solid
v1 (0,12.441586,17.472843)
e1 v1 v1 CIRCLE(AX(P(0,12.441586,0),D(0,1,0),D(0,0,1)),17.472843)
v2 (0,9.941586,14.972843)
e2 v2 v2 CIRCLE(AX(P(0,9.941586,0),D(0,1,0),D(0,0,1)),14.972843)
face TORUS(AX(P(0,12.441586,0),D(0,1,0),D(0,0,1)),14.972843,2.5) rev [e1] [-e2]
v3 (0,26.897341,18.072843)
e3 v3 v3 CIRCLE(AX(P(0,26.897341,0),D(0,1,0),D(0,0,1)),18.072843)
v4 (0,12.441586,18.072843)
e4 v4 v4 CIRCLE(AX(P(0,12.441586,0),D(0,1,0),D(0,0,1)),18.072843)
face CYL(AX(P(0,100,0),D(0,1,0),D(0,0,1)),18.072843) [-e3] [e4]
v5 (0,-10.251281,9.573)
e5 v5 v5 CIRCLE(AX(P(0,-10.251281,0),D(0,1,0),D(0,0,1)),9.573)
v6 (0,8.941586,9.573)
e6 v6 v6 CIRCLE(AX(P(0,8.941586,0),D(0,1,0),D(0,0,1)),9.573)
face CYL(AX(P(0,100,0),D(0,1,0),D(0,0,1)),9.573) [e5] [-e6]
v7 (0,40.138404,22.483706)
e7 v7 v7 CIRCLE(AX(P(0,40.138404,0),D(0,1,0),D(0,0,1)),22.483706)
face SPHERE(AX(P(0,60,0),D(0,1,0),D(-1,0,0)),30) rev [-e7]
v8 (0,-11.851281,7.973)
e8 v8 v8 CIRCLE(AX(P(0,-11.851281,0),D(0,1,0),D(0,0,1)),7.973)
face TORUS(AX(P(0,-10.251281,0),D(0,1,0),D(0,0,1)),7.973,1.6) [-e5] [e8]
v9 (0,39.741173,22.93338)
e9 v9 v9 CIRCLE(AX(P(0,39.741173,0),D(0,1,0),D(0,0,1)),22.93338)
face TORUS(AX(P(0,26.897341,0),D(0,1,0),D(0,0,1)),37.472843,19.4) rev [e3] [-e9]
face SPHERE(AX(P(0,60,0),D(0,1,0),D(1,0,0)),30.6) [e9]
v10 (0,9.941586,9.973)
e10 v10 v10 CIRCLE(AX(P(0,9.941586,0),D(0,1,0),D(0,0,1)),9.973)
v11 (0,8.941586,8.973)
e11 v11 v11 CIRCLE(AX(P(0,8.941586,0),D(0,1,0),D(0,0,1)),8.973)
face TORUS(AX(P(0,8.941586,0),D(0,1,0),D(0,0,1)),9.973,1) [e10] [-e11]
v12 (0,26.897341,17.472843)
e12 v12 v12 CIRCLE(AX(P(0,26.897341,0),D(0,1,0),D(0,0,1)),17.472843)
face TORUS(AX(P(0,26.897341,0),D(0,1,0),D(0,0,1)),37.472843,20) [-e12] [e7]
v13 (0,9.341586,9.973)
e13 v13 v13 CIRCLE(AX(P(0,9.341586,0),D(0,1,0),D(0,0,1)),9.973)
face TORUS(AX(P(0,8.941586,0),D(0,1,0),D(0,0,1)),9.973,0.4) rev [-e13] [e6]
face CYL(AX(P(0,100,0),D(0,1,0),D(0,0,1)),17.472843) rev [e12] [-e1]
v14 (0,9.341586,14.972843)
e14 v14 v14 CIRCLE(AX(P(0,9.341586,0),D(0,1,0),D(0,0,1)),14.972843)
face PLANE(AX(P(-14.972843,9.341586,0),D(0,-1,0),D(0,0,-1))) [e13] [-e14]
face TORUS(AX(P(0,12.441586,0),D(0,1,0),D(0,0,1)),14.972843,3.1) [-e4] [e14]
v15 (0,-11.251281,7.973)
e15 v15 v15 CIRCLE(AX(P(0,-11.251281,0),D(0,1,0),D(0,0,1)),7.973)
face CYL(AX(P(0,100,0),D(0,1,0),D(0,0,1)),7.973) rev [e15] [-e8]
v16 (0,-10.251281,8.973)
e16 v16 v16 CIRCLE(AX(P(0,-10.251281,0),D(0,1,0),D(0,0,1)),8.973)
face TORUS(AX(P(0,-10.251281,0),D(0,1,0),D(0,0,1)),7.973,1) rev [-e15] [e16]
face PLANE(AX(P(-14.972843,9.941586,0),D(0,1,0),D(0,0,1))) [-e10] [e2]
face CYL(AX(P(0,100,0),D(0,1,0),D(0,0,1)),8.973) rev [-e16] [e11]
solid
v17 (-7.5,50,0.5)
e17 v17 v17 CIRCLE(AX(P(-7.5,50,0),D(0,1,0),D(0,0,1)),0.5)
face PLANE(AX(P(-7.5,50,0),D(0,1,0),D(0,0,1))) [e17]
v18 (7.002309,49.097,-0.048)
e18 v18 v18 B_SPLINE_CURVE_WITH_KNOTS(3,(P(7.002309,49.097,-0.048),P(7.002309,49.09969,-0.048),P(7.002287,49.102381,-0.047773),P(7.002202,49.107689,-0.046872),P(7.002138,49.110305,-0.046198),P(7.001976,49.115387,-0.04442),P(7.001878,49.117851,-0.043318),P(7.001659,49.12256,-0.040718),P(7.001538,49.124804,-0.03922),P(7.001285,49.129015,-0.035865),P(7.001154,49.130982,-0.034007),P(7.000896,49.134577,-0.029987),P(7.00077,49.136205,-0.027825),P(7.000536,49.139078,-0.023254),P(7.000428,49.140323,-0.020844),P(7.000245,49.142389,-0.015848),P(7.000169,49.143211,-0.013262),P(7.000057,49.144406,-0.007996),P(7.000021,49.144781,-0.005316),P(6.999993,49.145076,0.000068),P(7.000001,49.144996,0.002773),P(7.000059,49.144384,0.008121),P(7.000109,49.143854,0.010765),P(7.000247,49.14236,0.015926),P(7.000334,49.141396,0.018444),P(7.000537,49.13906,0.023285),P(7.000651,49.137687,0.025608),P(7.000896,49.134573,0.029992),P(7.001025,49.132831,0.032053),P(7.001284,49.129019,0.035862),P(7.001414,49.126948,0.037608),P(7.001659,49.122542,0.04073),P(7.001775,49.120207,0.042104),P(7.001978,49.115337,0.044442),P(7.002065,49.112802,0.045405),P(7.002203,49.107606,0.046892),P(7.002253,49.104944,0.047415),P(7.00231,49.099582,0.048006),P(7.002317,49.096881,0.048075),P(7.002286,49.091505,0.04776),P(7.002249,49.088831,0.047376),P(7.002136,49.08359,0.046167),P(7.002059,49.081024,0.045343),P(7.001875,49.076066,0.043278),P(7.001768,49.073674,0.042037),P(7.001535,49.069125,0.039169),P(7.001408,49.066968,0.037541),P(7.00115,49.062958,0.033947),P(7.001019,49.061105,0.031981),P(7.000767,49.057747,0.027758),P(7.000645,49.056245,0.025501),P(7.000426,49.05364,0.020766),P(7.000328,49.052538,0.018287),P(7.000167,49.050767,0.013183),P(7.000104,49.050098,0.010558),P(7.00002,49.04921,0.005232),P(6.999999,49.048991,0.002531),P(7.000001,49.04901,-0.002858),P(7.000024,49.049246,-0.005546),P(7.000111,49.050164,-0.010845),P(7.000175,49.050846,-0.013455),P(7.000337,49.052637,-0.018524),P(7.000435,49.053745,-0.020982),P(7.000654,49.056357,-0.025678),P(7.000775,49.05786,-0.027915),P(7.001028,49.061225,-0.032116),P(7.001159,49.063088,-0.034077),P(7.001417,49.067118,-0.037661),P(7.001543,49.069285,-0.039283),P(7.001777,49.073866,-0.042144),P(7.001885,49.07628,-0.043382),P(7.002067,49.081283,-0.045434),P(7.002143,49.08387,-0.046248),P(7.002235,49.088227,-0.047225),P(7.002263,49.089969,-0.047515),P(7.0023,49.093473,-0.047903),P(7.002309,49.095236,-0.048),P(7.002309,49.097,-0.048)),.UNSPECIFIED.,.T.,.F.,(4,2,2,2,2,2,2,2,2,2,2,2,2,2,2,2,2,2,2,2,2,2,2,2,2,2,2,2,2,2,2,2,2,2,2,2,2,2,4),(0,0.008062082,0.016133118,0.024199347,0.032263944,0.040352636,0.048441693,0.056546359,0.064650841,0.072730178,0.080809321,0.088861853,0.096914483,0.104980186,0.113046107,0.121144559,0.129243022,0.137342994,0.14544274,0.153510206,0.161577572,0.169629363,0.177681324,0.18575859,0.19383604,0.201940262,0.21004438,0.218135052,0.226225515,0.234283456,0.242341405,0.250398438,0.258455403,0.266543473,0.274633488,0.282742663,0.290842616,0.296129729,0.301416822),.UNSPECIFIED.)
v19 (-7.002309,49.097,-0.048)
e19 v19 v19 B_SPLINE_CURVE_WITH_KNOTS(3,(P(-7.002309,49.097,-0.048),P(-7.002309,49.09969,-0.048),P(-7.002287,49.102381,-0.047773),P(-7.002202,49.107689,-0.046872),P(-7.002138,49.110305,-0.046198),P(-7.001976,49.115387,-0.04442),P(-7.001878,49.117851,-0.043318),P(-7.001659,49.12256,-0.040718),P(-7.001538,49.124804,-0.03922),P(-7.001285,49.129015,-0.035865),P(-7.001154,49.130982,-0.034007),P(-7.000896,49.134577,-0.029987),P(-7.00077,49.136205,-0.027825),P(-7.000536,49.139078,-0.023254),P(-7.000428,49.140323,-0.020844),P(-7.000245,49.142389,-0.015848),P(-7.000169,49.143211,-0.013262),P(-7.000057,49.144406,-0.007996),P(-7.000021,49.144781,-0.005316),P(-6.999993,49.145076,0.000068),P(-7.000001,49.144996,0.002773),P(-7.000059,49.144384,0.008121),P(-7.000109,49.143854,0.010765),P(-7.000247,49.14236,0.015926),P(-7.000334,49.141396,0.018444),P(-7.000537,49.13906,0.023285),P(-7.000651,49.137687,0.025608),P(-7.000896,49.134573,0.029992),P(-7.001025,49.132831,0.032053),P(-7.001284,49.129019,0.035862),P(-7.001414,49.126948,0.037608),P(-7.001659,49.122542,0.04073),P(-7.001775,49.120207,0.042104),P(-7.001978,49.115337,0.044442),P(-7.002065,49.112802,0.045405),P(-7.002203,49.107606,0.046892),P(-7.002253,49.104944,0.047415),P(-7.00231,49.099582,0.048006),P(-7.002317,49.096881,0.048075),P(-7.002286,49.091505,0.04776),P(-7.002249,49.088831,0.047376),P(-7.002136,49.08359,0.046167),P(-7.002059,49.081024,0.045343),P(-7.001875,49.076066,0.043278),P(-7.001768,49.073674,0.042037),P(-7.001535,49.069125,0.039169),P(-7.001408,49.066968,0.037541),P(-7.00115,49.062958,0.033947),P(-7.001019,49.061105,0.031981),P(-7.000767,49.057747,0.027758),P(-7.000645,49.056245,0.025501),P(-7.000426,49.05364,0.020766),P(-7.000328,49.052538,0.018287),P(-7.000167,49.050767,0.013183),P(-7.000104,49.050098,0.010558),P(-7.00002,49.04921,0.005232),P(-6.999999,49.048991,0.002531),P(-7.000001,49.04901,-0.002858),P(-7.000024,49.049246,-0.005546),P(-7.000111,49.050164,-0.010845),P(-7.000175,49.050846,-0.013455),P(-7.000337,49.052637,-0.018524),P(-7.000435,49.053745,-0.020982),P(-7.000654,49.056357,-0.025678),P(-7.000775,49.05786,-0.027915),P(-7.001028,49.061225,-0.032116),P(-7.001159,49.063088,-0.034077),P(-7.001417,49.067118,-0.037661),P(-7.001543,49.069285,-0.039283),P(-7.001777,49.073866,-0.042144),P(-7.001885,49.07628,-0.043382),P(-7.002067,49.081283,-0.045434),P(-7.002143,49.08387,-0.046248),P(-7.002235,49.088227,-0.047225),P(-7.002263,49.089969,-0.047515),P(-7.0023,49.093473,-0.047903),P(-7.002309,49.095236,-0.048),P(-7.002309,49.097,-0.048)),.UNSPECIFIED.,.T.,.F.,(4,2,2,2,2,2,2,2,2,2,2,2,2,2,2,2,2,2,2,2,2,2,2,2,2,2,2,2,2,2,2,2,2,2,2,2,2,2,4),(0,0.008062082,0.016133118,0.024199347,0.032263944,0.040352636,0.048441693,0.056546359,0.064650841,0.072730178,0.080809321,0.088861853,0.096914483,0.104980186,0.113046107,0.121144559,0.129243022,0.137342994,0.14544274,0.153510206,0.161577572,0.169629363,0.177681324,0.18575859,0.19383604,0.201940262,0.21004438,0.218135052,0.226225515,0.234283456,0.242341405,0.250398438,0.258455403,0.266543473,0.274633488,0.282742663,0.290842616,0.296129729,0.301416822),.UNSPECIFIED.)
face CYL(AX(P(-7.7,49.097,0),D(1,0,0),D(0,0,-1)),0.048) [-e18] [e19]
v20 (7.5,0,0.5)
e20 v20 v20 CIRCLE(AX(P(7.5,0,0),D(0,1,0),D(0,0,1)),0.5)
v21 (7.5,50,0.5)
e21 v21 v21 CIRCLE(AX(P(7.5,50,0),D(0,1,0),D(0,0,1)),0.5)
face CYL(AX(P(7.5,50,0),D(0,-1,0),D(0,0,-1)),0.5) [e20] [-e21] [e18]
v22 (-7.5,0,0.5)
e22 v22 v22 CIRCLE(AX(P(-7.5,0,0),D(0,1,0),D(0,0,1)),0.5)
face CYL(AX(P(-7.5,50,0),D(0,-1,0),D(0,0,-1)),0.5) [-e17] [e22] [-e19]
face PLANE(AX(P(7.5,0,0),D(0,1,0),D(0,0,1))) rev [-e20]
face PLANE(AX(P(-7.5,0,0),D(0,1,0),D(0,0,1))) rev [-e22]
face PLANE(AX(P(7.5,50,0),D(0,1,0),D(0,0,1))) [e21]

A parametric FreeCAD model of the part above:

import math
import FreeCAD as App
import Part
import Sketcher

doc = App.newDocument("Part")
body = doc.addObject("PartDesign::Body", "Body")

# Sketch on XZ plane
sketch1 = body.newObject("Sketcher::SketchObject", "Sketch")
sketch1.AttachmentSupport = (doc.getObject("XZ_Plane"), [""])
sketch1.MapMode = "FlatFace"
sketch1.addGeometry(Part.Circle(App.Vector(7.5, 0, 0), App.Vector(0, 0, 1), 0.5), False)
sketch1.addConstraint(Sketcher.Constraint("PointOnObject", 0, 3, -1))
sketch1.addConstraint(Sketcher.Constraint("Diameter", 0, 1.0))
sketch1.addConstraint(Sketcher.Constraint("DistanceX", -1, 1, 0, 3, 7.5))
pad1 = body.newObject("PartDesign::Pad", "Pad")
pad1.Profile = sketch1
pad1.Length = 50
pad1.Reversed = True
body2 = doc.addObject("PartDesign::Body", "Body001")

# Sketch on XZ plane
sketch2 = body2.newObject("Sketcher::SketchObject", "Sketch001")
sketch2.AttachmentSupport = (doc.getObject("XZ_Plane001"), [""])
sketch2.MapMode = "FlatFace"
sketch2.addGeometry(Part.Circle(App.Vector(-7.5, 0, 0), App.Vector(0, 0, 1), 0.5), False)
sketch2.addConstraint(Sketcher.Constraint("PointOnObject", 0, 3, -1))
sketch2.addConstraint(Sketcher.Constraint("Diameter", 0, 1.0))
sketch2.addConstraint(Sketcher.Constraint("DistanceX", 0, 3, -1, 1, 7.5))
pad2 = body2.newObject("PartDesign::Pad", "Pad001")
pad2.Profile = sketch2
pad2.Length = 50
pad2.Reversed = True
body.AllowCompound = True
doc.recompute()

boolean = body.newObject("PartDesign::Boolean", "Boolean")
boolean.Type = "Fuse"
boolean.addObjects([body2])

# Sketch on YZ plane
sketch3 = body.newObject("Sketcher::SketchObject", "Sketch002")
sketch3.AttachmentSupport = (doc.getObject("YZ_Plane"), [""])
sketch3.MapMode = "FlatFace"
sketch3.addGeometry(Part.Circle(App.Vector(49.097, 0, 0), App.Vector(0, 0, 1), 0.048), False)
sketch3.addConstraint(Sketcher.Constraint("PointOnObject", 0, 3, -1))
sketch3.addConstraint(Sketcher.Constraint("Diameter", 0, 0.096))
sketch3.addConstraint(Sketcher.Constraint("DistanceX", -1, 1, 0, 3, 49.097))
pad3 = body.newObject("PartDesign::Pad", "Pad002")
pad3.Profile = sketch3
pad3.Type = "TwoLengths"
pad3.Length = 7.7
pad3.Length2 = 7.7
body3 = doc.addObject("PartDesign::Body", "Body002")

# Sketch on XY plane
sketch4 = body3.newObject("Sketcher::SketchObject", "Sketch003")
sketch4.AttachmentSupport = (doc.getObject("XY_Plane002"), [""])
sketch4.MapMode = "FlatFace"
sketch4.addGeometry(Part.LineSegment(App.Vector(-9.97, 9.94, 0), App.Vector(-14.97, 9.94, 0)), False)
sketch4.addGeometry(Part.ArcOfCircle(Part.Circle(App.Vector(-14.97, 12.44, 0), App.Vector(0, 0, 1), 2.5), math.radians(180), math.radians(270)), False)
sketch4.addGeometry(Part.LineSegment(App.Vector(-17.47, 12.44, 0), App.Vector(-17.47, 26.9, 0)), False)
sketch4.addGeometry(Part.ArcOfCircle(Part.Circle(App.Vector(-37.47, 26.9, 0), App.Vector(0, 0, 1), 20), math.radians(0), math.radians(41)), False)
sketch4.addGeometry(Part.ArcOfCircle(Part.Circle(App.Vector(0, 60, 0), App.Vector(0, 0, 1), 30), math.radians(90), math.radians(221)), False)
sketch4.addGeometry(Part.LineSegment(App.Vector(0, 90, 0), App.Vector(0, 90.6, 0)), False)
sketch4.addGeometry(Part.ArcOfCircle(Part.Circle(App.Vector(0, 60, 0), App.Vector(0, 0, 1), 30.6), math.radians(90), math.radians(221)), False)
sketch4.addGeometry(Part.ArcOfCircle(Part.Circle(App.Vector(-37.47, 26.9, 0), App.Vector(0, 0, 1), 19.4), math.radians(0), math.radians(41)), False)
sketch4.addGeometry(Part.LineSegment(App.Vector(-18.07, 26.9, 0), App.Vector(-18.07, 12.44, 0)), False)
sketch4.addGeometry(Part.ArcOfCircle(Part.Circle(App.Vector(-14.97, 12.44, 0), App.Vector(0, 0, 1), 3.1), math.radians(-180), math.radians(-90)), False)
sketch4.addGeometry(Part.LineSegment(App.Vector(-14.97, 9.34, 0), App.Vector(-9.97, 9.34, 0)), False)
sketch4.addGeometry(Part.ArcOfCircle(Part.Circle(App.Vector(-9.97, 8.94, 0), App.Vector(0, 0, 1), 0.4), math.radians(0), math.radians(90)), False)
sketch4.addGeometry(Part.LineSegment(App.Vector(-9.57, 8.94, 0), App.Vector(-9.57, -10.25, 0)), False)
sketch4.addGeometry(Part.ArcOfCircle(Part.Circle(App.Vector(-7.97, -10.25, 0), App.Vector(0, 0, 1), 1.6), math.radians(180), math.radians(270)), False)
sketch4.addGeometry(Part.LineSegment(App.Vector(-7.97, -11.85, 0), App.Vector(-7.97, -11.25, 0)), False)
sketch4.addGeometry(Part.ArcOfCircle(Part.Circle(App.Vector(-7.97, -10.25, 0), App.Vector(0, 0, 1), 1), math.radians(-180), math.radians(-90)), False)
sketch4.addGeometry(Part.LineSegment(App.Vector(-8.97, -10.25, 0), App.Vector(-8.97, 8.94, 0)), False)
sketch4.addGeometry(Part.ArcOfCircle(Part.Circle(App.Vector(-9.97, 8.94, 0), App.Vector(0, 0, 1), 1), math.radians(0), math.radians(90)), False)
sketch4.addConstraint(Sketcher.Constraint("Tangent", 0, 2, 1, 2))
sketch4.addConstraint(Sketcher.Constraint("Tangent", 1, 1, 2, 1))
sketch4.addConstraint(Sketcher.Constraint("Tangent", 2, 2, 3, 1))
sketch4.addConstraint(Sketcher.Constraint("Tangent", 3, 2, 4, 2))
sketch4.addConstraint(Sketcher.Constraint("Coincident", 4, 1, 5, 1))
sketch4.addConstraint(Sketcher.Constraint("Coincident", 5, 2, 6, 1))
sketch4.addConstraint(Sketcher.Constraint("Tangent", 6, 2, 7, 2))
sketch4.addConstraint(Sketcher.Constraint("Tangent", 7, 1, 8, 1))
sketch4.addConstraint(Sketcher.Constraint("Tangent", 8, 2, 9, 1))
sketch4.addConstraint(Sketcher.Constraint("Tangent", 9, 2, 10, 1))
sketch4.addConstraint(Sketcher.Constraint("Tangent", 10, 2, 11, 2))
sketch4.addConstraint(Sketcher.Constraint("Tangent", 11, 1, 12, 1))
sketch4.addConstraint(Sketcher.Constraint("Tangent", 12, 2, 13, 1))
sketch4.addConstraint(Sketcher.Constraint("Coincident", 13, 2, 14, 1))
sketch4.addConstraint(Sketcher.Constraint("Coincident", 14, 2, 15, 2))
sketch4.addConstraint(Sketcher.Constraint("Tangent", 15, 1, 16, 1))
sketch4.addConstraint(Sketcher.Constraint("Tangent", 16, 2, 17, 1))
sketch4.addConstraint(Sketcher.Constraint("Tangent", 17, 2, 0, 1))
sketch4.addConstraint(Sketcher.Constraint("Horizontal", 0))
sketch4.addConstraint(Sketcher.Constraint("Vertical", 2))
sketch4.addConstraint(Sketcher.Constraint("Vertical", 5))
sketch4.addConstraint(Sketcher.Constraint("Vertical", 8))
sketch4.addConstraint(Sketcher.Constraint("Horizontal", 10))
sketch4.addConstraint(Sketcher.Constraint("Vertical", 12))
sketch4.addConstraint(Sketcher.Constraint("Vertical", 14))
sketch4.addConstraint(Sketcher.Constraint("Vertical", 16))
sketch4.addConstraint(Sketcher.Constraint("Coincident", 6, 3, 4, 3))
sketch4.addConstraint(Sketcher.Constraint("Coincident", 7, 3, 3, 3))
sketch4.addConstraint(Sketcher.Constraint("Coincident", 9, 3, 1, 3))
sketch4.addConstraint(Sketcher.Constraint("Coincident", 15, 3, 13, 3))
sketch4.addConstraint(Sketcher.Constraint("Coincident", 17, 3, 11, 3))
sketch4.addConstraint(Sketcher.Constraint("Equal", 15, 17))
sketch4.addConstraint(Sketcher.Constraint("PointOnObject", 4, 3, -2))
sketch4.addConstraint(Sketcher.Constraint("PointOnObject", 4, 1, -2))
sketch4.addConstraint(Sketcher.Constraint("Vertical", 15, 3, 13, 2))
sketch4.addConstraint(Sketcher.Constraint("Radius", 3, 20.0))
sketch4.addConstraint(Sketcher.Constraint("Radius", 4, 30.0))
sketch4.addConstraint(Sketcher.Constraint("Radius", 15, 1.0))
sketch4.addConstraint(Sketcher.Constraint("Radius", 1, 2.5))
sketch4.addConstraint(Sketcher.Constraint("Radius", 6, 30.6))
sketch4.addConstraint(Sketcher.Constraint("DistanceY", -1, 1, 4, 3, 60.0))
sketch4.addConstraint(Sketcher.Constraint("DistanceX", 11, 3, -1, 1, 9.973))
sketch4.addConstraint(Sketcher.Constraint("DistanceX", 0, 2, 0, 1, 4.999843))
sketch4.addConstraint(Sketcher.Constraint("DistanceY", 2, 1, 2, 2, 14.455754))
sketch4.addConstraint(Sketcher.Constraint("DistanceY", 12, 2, 12, 1, 19.192867))
revolution = body3.newObject("PartDesign::Revolution", "Revolution")
revolution.Profile = sketch4
revolution.ReferenceAxis = (sketch4, ["V_Axis"])
revolution.Angle = 360

doc.recompute()
